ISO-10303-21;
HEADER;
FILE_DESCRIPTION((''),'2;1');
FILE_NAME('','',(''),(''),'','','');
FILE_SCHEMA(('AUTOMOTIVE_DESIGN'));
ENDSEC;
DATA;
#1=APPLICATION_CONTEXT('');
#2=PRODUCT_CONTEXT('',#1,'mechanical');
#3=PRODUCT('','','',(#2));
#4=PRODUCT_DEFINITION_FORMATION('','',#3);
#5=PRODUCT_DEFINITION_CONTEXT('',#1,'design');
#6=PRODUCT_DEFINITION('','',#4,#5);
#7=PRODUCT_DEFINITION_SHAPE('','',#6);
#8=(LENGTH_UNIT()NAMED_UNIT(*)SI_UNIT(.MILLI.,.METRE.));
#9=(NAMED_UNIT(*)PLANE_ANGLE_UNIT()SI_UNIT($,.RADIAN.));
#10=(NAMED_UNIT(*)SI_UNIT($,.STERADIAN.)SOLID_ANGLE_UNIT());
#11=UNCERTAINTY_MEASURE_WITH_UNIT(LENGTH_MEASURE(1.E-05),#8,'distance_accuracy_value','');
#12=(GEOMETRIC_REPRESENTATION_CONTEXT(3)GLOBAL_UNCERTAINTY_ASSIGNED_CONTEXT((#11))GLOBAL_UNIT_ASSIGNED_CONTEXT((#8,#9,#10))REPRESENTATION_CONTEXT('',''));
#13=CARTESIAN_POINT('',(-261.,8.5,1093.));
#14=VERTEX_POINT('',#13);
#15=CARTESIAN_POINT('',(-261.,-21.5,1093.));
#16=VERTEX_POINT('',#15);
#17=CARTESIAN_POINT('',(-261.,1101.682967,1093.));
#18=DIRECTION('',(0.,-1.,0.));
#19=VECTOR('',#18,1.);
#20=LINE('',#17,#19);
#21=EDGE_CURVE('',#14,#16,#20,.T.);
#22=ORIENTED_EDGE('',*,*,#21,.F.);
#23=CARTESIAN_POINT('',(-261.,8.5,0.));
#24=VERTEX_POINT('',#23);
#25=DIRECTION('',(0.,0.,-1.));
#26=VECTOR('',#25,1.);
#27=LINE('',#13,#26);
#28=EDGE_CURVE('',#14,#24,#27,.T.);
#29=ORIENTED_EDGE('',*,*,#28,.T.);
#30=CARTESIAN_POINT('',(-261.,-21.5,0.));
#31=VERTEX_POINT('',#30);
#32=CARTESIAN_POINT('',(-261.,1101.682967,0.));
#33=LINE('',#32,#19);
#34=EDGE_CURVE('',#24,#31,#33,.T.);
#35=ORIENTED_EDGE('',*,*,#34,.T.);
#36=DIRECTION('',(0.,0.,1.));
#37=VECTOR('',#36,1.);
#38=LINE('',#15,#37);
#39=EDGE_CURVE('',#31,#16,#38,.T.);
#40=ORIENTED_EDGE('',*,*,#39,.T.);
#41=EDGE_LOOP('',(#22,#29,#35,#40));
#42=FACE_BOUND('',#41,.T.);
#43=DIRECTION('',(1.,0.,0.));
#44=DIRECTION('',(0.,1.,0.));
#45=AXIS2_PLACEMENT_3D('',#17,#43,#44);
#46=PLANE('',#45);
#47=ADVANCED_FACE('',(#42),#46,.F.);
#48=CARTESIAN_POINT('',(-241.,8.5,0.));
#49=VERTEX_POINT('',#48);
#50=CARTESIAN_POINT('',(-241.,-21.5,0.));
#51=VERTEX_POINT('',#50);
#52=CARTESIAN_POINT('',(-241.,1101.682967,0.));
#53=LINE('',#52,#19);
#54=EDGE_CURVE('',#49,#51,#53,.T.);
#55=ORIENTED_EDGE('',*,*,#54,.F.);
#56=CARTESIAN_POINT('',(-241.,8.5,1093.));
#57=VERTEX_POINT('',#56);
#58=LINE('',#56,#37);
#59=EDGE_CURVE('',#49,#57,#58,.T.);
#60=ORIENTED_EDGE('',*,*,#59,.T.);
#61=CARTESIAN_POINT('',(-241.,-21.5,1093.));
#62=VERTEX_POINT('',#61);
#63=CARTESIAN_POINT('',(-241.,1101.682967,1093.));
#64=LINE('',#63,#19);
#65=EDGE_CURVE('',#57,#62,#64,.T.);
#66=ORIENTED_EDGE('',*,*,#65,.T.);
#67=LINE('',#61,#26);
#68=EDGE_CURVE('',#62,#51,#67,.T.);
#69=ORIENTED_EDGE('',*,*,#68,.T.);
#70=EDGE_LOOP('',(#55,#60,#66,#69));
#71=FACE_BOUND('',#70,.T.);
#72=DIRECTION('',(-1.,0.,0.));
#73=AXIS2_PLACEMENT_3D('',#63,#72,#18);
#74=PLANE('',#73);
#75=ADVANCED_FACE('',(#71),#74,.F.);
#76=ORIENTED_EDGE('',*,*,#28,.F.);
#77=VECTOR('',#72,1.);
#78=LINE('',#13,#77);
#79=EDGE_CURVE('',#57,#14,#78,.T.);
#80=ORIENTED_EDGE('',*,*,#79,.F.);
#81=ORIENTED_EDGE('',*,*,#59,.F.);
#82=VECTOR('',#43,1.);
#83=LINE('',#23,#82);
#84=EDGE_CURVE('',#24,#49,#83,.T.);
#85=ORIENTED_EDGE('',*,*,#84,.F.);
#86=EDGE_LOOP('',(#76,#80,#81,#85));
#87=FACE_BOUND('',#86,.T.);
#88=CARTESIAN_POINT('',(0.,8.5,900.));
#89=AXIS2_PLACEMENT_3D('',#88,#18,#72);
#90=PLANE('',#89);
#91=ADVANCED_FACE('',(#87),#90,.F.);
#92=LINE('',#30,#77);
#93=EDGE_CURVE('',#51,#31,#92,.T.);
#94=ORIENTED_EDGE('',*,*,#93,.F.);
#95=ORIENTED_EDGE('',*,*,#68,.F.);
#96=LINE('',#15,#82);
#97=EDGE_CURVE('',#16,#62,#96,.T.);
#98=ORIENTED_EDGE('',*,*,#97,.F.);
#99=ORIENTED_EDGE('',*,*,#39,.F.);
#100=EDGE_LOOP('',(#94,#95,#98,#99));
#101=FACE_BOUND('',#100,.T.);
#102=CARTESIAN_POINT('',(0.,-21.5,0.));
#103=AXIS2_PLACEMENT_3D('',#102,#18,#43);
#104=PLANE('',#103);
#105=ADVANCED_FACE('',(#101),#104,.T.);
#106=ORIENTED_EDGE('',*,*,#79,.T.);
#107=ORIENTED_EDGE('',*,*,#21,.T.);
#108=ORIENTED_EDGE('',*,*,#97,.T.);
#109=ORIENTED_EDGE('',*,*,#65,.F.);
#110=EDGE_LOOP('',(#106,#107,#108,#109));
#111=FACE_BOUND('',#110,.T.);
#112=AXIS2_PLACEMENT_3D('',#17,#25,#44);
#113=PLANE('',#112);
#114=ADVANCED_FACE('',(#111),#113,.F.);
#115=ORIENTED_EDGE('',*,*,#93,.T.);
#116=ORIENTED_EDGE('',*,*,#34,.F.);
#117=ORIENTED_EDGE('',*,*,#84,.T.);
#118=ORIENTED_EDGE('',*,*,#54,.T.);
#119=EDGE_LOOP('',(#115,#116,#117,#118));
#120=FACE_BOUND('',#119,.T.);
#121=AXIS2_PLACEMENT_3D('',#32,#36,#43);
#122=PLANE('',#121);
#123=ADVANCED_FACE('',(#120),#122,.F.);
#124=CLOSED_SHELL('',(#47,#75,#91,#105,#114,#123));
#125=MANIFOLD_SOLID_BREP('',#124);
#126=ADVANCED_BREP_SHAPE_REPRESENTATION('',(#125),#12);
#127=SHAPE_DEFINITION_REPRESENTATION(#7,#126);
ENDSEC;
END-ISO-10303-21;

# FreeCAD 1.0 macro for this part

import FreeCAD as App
import Part
import Sketcher


def add_polygon(sketch, points):
    """Adds a closed chain of lines whose ends are joined by coincident constraints."""
    first, n = sketch.GeometryCount, len(points)
    for a, b in zip(points, points[1:] + points[:1]):
        sketch.addGeometry(Part.LineSegment(App.Vector(*a, 0), App.Vector(*b, 0)), False)
    for i in range(n):
        sketch.addConstraint(Sketcher.Constraint("Coincident", first + i, 2, first + (i + 1) % n, 1))

doc = App.newDocument("Part")
body = doc.addObject("PartDesign::Body", "Body")

# Sketch on XZ plane
sketch1 = doc.addObject("Sketcher::SketchObject", "Sketch")
body.addObject(sketch1)
sketch1.AttachmentSupport = (doc.XZ_Plane, [""])
sketch1.MapMode = "FlatFace"
sketch1.AttachmentOffset = App.Placement(App.Vector(0, 0, 21.5), App.Rotation())
add_polygon(sketch1, [(-261, 0), (-261, 1093), (-241, 1093), (-241, 0)])  # lines 0-3
sketch1.addConstraint(Sketcher.Constraint("Vertical", 0))
sketch1.addConstraint(Sketcher.Constraint("Horizontal", 1))
sketch1.addConstraint(Sketcher.Constraint("Vertical", 2))
sketch1.addConstraint(Sketcher.Constraint("Horizontal", 3))
sketch1.addConstraint(Sketcher.Constraint("PointOnObject", 2, 2, -1))
sketch1.addConstraint(Sketcher.Constraint("DistanceX", 1, 1, 1, 2, 20.0))
sketch1.addConstraint(Sketcher.Constraint("DistanceY", 0, 1, 0, 2, 1093.0))
sketch1.addConstraint(Sketcher.Constraint("DistanceX", 0, 2, -1, 1, 261.0))
pad1 = doc.addObject("PartDesign::Pad", "Pad")
body.addObject(pad1)
pad1.Profile = sketch1
pad1.Length = 30
pad1.Reversed = True

doc.recompute()
